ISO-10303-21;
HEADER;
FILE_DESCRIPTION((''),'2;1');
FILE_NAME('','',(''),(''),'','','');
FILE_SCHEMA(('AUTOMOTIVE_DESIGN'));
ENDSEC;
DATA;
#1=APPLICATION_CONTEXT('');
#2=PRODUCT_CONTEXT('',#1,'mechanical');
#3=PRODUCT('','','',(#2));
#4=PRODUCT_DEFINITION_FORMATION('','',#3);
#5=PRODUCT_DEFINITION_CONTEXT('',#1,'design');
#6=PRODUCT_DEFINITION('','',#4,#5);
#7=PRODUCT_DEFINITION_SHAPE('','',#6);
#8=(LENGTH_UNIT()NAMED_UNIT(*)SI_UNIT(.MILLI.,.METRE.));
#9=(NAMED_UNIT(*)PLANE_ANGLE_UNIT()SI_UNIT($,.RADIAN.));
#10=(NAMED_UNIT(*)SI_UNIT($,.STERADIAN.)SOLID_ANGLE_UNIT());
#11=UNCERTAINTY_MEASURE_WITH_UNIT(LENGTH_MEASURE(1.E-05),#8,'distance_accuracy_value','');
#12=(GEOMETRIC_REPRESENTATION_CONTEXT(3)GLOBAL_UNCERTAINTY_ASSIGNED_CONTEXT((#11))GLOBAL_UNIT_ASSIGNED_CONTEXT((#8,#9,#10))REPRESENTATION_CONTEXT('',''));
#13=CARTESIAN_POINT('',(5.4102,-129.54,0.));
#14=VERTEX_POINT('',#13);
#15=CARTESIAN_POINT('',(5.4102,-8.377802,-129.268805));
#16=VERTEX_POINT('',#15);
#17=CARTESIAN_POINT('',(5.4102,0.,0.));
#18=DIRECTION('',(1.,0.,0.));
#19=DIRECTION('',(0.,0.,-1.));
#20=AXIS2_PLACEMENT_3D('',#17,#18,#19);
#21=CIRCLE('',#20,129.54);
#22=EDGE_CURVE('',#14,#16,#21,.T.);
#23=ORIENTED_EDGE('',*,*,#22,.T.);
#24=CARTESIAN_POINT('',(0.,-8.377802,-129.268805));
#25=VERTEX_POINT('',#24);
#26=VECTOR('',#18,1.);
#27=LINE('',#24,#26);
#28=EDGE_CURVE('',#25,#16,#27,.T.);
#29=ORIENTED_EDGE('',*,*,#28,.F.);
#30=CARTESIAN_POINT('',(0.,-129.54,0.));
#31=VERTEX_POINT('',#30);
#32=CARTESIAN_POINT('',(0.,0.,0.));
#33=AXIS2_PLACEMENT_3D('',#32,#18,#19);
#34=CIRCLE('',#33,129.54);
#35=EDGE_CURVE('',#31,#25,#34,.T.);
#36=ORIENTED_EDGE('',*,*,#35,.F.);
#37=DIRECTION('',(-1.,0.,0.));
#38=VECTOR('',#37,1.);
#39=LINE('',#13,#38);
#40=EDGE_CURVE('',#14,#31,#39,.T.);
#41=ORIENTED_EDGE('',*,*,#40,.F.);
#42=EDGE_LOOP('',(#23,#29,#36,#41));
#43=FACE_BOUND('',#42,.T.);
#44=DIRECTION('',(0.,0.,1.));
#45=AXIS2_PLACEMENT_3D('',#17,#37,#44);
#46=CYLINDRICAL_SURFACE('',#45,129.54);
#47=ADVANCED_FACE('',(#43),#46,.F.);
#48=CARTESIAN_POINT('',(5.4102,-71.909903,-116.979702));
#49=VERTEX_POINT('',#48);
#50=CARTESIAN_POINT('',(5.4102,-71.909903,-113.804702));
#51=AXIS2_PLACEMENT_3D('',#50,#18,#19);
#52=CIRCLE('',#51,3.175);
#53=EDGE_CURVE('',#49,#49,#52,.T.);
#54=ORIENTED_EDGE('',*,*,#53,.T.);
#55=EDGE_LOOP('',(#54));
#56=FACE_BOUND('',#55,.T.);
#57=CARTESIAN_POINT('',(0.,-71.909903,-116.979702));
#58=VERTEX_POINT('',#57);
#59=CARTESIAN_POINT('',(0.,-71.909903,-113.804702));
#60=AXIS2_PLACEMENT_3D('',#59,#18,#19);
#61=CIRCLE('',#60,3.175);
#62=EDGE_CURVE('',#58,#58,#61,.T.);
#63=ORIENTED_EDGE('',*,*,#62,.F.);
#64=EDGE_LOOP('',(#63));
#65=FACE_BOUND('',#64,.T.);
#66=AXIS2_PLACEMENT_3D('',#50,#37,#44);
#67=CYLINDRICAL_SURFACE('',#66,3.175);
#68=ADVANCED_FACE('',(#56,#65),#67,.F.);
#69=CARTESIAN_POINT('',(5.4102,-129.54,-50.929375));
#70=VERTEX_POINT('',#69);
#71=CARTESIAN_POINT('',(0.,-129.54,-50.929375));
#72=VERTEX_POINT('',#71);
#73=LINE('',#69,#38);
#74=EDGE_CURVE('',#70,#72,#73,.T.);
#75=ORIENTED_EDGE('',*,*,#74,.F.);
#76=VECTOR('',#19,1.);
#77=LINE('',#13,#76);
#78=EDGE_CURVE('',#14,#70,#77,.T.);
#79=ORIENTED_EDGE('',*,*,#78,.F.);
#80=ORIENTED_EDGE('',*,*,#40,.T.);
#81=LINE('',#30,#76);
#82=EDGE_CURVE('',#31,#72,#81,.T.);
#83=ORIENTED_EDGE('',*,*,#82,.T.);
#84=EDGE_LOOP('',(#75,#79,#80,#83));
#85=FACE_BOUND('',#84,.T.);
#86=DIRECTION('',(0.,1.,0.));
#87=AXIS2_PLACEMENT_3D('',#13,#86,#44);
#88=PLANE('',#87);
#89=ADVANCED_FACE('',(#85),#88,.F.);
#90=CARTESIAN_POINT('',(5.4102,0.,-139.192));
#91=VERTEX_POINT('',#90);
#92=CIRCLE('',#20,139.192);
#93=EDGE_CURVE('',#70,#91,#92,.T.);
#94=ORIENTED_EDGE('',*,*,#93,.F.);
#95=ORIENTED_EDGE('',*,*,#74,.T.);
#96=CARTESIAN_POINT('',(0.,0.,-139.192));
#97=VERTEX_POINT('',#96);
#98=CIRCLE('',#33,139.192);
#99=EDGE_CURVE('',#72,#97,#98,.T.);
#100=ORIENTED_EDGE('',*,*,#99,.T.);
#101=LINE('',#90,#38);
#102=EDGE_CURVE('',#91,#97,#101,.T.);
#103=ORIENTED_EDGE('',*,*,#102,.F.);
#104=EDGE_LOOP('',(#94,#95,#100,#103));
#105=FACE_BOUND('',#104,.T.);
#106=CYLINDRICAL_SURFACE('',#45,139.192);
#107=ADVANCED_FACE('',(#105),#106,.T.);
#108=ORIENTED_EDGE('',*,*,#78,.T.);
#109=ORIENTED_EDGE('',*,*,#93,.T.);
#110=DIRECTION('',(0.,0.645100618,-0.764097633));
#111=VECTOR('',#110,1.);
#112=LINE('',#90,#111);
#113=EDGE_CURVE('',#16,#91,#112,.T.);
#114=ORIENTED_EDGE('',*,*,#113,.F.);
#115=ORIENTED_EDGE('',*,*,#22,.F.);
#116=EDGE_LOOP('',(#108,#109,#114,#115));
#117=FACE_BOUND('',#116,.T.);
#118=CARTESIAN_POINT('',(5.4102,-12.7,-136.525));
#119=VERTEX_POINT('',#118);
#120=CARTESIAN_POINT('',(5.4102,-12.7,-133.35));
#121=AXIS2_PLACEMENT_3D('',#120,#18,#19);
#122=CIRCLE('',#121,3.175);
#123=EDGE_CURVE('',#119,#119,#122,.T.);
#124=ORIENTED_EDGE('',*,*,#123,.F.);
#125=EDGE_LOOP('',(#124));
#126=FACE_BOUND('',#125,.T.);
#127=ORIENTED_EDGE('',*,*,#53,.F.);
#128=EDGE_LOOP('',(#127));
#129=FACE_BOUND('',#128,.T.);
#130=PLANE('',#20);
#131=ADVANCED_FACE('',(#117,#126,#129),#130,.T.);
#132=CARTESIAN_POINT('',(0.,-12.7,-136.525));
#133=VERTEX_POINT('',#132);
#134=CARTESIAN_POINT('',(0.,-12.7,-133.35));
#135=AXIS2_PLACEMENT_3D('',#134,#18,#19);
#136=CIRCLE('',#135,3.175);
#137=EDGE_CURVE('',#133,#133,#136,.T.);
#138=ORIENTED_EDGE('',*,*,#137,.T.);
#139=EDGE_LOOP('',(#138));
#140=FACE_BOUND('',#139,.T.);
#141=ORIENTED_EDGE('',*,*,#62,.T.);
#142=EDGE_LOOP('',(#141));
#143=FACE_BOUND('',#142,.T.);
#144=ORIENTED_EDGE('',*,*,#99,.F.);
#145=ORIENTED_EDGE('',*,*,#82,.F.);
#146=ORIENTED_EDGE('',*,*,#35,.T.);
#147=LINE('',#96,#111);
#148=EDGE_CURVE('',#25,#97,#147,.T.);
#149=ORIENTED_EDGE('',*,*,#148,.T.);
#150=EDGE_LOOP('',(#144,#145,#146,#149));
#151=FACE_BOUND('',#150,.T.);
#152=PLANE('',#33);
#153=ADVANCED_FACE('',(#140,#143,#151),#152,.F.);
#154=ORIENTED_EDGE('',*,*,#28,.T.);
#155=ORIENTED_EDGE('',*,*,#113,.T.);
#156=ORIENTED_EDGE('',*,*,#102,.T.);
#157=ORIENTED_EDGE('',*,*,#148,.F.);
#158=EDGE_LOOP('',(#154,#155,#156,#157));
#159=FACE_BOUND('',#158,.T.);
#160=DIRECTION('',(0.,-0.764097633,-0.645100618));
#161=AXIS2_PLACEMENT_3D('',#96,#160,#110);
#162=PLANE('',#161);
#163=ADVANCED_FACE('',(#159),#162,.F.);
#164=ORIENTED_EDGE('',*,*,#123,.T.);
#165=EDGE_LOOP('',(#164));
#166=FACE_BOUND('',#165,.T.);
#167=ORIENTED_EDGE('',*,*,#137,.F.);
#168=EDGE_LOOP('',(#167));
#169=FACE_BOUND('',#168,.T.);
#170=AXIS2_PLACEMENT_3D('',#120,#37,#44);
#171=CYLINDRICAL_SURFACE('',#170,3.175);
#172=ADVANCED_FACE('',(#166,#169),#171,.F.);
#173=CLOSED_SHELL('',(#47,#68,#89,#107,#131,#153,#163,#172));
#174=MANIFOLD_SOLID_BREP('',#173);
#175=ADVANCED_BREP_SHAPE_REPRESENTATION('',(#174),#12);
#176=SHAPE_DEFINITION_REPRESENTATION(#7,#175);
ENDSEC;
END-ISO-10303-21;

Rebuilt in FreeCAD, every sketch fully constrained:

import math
import FreeCAD as App
import Part
import Sketcher

V = App.Vector
Q = App.Units.Quantity

doc = App.newDocument("Part")
params = doc.addObject("Spreadsheet::Sheet", "Params")
for row, (alias, value) in enumerate([
    ("sketch1_radius", "5.1 in"),
    ("sketch1_diameter", "0.25 in"),
    ("sketch1_radius2", "5.48 in"),
    ("pad1_length", "0.213 in"),
    ("sketch2_height", "0.38 in"),
    ("pocket1_length", "0.213 in"),
], start=1):
    params.set(f"A{row}", alias)
    params.set(f"B{row}", "=" + value)
    params.setAlias(f"B{row}", alias)

body = doc.addObject("PartDesign::Body", "Body")

sketch1 = body.newObject("Sketcher::SketchObject", "Sketch")
sketch1.AttachmentSupport = (doc.getObject("YZ_Plane"), [""])
sketch1.MapMode = "FlatFace"
sketch1.addGeometry(Part.ArcOfCircle(Part.Circle(V(0, 0, 0), V(0, 0, 1), 129.5), math.radians(-180), math.radians(-122)), False)
sketch1.addGeometry(Part.LineSegment(V(-129.5, 0, 0), V(-129.5, -50.9, 0)), False)
sketch1.addGeometry(Part.ArcOfCircle(Part.Circle(V(0, 0, 0), V(0, 0, 1), 139.2), math.radians(-159), math.radians(-90)), False)
sketch1.addGeometry(Part.LineSegment(V(0, -139.2, 0), V(0, -129.5, 0)), False)
sketch1.addGeometry(Part.ArcOfCircle(Part.Circle(V(0, 0, 0), V(0, 0, 1), 129.5), math.radians(-122), math.radians(-90)), False)
sketch1.addGeometry(Part.ArcOfCircle(Part.Circle(V(-71.9, -113.8, 0), V(0, 0, 1), 3.2), math.radians(-90), math.radians(58)), False)
sketch1.addGeometry(Part.ArcOfCircle(Part.Circle(V(-71.9, -113.8, 0), V(0, 0, 1), 3.2), math.radians(58), math.radians(270)), False)
sketch1.addGeometry(Part.Circle(V(-12.7, -133.3, 0), V(0, 0, 1), 3.2), False)
sketch1.addConstraint(Sketcher.Constraint("Tangent", 0, 1, 1, 1))
sketch1.addConstraint(Sketcher.Constraint("Coincident", 1, 2, 2, 1))
sketch1.addConstraint(Sketcher.Constraint("Coincident", 2, 2, 3, 1))
sketch1.addConstraint(Sketcher.Constraint("Coincident", 3, 2, 4, 2))
sketch1.addConstraint(Sketcher.Constraint("Tangent", 4, 1, 0, 2))
sketch1.addConstraint(Sketcher.Constraint("Tangent", 5, 1, 6, 2))
sketch1.addConstraint(Sketcher.Constraint("Coincident", 6, 1, 5, 2))
sketch1.addConstraint(Sketcher.Constraint("Vertical", 1))
sketch1.addConstraint(Sketcher.Constraint("Vertical", 3))
sketch1.addConstraint(Sketcher.Constraint("Coincident", 0, 3, -1, 1))
sketch1.addConstraint(Sketcher.Constraint("Coincident", 2, 3, -1, 1))
sketch1.addConstraint(Sketcher.Constraint("Equal", 0, 4))
sketch1.addConstraint(Sketcher.Constraint("Equal", 6, 7))
sketch1.addConstraint(Sketcher.Constraint("PointOnObject", 2, 2, -2))
sketch1.addConstraint(Sketcher.Constraint("Vertical", 6, 3, 5, 1))
sketch1.addConstraint(Sketcher.Constraint("Radius", 0, Q("5.1 in")))
sketch1.addConstraint(Sketcher.Constraint("Diameter", 7, Q("0.25 in")))
sketch1.addConstraint(Sketcher.Constraint("Radius", 2, Q("5.48 in")))
sketch1.addConstraint(Sketcher.Constraint("DistanceX", 7, 3, -1, 1, Q("0.5 in")))
sketch1.addConstraint(Sketcher.Constraint("DistanceY", 7, 3, -1, 1, Q("5.25 in")))
sketch1.addConstraint(Sketcher.Constraint("DistanceY", 5, 3, -1, 1, Q("4.4805001 in")))
sketch1.addConstraint(Sketcher.Constraint("DistanceX", 4, 1, -1, 1, Q("69.196321 mm")))
sketch1.addConstraint(Sketcher.Constraint("DistanceY", 6, 1, -1, 1, Q("111.120629 mm")))
sketch1.addConstraint(Sketcher.Constraint("DistanceX", 5, 3, 4, 1, Q("2.713581 mm")))
sketch1.setExpression("Constraints[15]", "Params.sketch1_radius")
sketch1.setExpression("Constraints[16]", "Params.sketch1_diameter")
sketch1.setExpression("Constraints[17]", "Params.sketch1_radius2")
pad1 = body.newObject("PartDesign::Pad", "Pad")
pad1.Profile = sketch1
pad1.setExpression("Length", "Params.pad1_length")

sketch2 = body.newObject("Sketcher::SketchObject", "Sketch001")
sketch2.AttachmentSupport = (doc.getObject("YZ_Plane"), [""])
sketch2.MapMode = "FlatFace"
sketch2.AttachmentOffset = App.Placement(V(0, 0, 0.213 * 25.4), App.Rotation())
sketch2.addGeometry(Part.LineSegment(V(-8, -129, 0), V(0, -139, 0)), False)
sketch2.addGeometry(Part.LineSegment(V(0, -139, 0), V(0, -130, 0)), False)
sketch2.addGeometry(Part.LineSegment(V(0, -130, 0), V(-8, -129, 0)), False)
sketch2.addConstraint(Sketcher.Constraint("Coincident", 0, 2, 1, 1))
sketch2.addConstraint(Sketcher.Constraint("Coincident", 1, 2, 2, 1))
sketch2.addConstraint(Sketcher.Constraint("Coincident", 2, 2, 0, 1))
sketch2.addConstraint(Sketcher.Constraint("Vertical", 1))
sketch2.addConstraint(Sketcher.Constraint("PointOnObject", 0, 2, -2))
sketch2.addConstraint(Sketcher.Constraint("DistanceY", 1, 1, 1, 2, Q("0.38 in")))
sketch2.addConstraint(Sketcher.Constraint("DistanceY", 1, 2, -1, 1, Q("5.1 in")))
sketch2.addConstraint(Sketcher.Constraint("Distance", 2, Q("8.382191 mm")))
sketch2.addConstraint(Sketcher.Constraint("Distance", 0, Q("12.986815 mm")))
sketch2.setExpression("Constraints[5]", "Params.sketch2_height")
pocket1 = body.newObject("PartDesign::Pocket", "Pocket")
pocket1.Profile = sketch2
pocket1.setExpression("Length", "Params.pocket1_length")

doc.recompute()
